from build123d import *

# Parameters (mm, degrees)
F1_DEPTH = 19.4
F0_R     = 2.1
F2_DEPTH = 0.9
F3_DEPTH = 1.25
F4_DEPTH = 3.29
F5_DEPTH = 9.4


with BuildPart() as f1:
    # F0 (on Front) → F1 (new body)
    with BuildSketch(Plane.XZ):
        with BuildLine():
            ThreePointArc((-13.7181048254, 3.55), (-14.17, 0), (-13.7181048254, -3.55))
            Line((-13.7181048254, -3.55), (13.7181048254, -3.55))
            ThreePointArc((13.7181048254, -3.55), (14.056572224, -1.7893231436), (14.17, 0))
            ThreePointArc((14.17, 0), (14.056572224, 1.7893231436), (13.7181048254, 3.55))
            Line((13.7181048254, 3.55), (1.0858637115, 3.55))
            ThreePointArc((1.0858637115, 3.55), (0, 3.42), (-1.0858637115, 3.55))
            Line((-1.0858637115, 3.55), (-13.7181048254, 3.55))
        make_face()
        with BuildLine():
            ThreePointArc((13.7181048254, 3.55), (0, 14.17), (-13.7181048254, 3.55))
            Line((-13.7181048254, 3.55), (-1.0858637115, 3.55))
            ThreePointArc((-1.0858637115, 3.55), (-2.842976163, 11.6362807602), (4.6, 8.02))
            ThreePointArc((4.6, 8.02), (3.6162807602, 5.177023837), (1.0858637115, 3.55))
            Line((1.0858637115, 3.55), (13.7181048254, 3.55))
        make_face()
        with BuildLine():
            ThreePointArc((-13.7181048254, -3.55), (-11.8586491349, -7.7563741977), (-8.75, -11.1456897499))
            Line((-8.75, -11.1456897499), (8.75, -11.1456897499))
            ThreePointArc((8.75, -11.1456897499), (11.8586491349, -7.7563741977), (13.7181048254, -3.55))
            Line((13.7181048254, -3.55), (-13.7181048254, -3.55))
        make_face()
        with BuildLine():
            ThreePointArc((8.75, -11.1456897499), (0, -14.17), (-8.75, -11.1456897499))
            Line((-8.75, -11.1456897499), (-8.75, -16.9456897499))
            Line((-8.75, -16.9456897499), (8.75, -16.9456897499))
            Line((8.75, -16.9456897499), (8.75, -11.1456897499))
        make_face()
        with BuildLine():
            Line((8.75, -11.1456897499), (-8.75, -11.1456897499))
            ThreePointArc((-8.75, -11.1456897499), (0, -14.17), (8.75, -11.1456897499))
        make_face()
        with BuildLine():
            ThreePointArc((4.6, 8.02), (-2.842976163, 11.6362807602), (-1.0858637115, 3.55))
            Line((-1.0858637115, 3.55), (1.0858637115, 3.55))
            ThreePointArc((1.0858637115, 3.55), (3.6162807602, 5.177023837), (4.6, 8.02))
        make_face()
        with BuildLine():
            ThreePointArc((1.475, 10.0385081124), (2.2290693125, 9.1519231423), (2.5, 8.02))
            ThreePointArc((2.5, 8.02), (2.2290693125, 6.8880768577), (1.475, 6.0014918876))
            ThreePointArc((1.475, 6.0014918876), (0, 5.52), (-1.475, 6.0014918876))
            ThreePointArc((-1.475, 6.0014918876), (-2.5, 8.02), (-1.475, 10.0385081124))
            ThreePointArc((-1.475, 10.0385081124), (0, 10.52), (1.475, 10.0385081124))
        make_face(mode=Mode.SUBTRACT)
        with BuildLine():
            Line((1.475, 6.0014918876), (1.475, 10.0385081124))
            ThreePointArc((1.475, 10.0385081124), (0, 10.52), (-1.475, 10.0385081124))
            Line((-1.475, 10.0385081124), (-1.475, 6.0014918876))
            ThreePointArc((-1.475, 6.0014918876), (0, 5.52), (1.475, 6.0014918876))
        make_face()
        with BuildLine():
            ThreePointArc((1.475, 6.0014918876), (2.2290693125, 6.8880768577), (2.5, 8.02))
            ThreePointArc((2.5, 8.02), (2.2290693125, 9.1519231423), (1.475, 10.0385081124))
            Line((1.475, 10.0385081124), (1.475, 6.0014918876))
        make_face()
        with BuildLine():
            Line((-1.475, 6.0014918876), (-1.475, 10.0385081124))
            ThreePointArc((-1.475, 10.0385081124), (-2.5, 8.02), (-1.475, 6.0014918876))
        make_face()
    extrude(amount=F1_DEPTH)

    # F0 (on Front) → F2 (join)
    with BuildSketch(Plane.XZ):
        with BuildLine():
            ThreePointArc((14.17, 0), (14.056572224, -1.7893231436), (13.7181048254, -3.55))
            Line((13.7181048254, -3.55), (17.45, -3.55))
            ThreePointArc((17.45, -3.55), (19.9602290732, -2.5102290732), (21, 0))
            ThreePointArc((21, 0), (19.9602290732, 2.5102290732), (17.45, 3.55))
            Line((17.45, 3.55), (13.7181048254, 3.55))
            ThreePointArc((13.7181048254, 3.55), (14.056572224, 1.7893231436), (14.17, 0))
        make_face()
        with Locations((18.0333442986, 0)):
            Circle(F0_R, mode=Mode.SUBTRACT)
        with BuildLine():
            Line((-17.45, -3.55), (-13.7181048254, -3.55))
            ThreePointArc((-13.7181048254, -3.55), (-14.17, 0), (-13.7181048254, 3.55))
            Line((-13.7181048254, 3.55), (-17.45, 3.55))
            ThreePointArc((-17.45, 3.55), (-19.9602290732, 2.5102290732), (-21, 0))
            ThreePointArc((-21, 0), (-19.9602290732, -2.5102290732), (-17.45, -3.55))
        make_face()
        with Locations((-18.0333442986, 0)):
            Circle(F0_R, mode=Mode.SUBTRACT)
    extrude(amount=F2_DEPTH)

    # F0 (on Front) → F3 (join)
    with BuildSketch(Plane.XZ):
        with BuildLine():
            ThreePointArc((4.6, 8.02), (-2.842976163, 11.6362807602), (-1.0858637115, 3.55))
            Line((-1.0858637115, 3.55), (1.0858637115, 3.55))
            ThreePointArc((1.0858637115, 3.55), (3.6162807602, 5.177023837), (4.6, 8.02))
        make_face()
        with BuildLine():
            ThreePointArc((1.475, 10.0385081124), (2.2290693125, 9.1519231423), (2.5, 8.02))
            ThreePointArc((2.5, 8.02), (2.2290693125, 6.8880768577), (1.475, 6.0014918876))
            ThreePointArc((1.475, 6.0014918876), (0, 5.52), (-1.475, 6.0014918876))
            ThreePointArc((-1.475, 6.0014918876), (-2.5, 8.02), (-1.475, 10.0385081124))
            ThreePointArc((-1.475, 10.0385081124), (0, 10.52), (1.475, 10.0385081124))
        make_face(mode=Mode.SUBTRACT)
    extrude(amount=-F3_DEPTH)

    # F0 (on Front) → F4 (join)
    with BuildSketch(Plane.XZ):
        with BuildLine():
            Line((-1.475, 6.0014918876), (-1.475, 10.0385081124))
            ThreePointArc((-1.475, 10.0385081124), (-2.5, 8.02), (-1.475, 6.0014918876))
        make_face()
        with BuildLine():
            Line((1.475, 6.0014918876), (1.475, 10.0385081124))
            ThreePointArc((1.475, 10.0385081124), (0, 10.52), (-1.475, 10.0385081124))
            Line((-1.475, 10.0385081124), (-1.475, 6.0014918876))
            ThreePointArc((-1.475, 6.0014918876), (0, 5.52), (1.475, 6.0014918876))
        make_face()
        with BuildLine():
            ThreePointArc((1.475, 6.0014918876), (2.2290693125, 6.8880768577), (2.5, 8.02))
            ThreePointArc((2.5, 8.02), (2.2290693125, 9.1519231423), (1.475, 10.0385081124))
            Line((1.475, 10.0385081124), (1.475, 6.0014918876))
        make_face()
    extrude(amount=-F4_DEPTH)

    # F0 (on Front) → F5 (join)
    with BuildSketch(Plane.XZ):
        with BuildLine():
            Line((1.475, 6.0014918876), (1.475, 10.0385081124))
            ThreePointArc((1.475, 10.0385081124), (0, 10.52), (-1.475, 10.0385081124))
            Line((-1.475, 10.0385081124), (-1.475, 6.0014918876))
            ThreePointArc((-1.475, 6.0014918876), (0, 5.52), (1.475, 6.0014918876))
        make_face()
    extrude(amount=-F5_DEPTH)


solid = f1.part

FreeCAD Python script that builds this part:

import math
import FreeCAD as App
import Part
import Sketcher

V = App.Vector

doc = App.newDocument("Part")
body = doc.addObject("PartDesign::Body", "Body")

# Sketch on XZ plane
sketch1 = doc.addObject("Sketcher::SketchObject", "Sketch")
body.addObject(sketch1)
sketch1.AttachmentSupport = (doc.XZ_Plane, [""])
sketch1.MapMode = "FlatFace"
sketch1.addGeometry([
    Part.ArcOfCircle(Part.Circle(V(0, 0, 0), V(0, 0, 1), 14.2), math.radians(165), math.radians(195)),  # 0
    Part.ArcOfCircle(Part.Circle(V(0, 0, 0), V(0, 0, 1), 14.2), math.radians(-165), math.radians(-128)),  # 1
    Part.LineSegment(V(-8.8, -11.1, 0), V(-8.8, -16.9, 0)),  # 2
    Part.LineSegment(V(-8.8, -16.9, 0), V(8.8, -16.9, 0)),  # 3
    Part.LineSegment(V(8.8, -16.9, 0), V(8.8, -11.1, 0)),  # 4
    Part.ArcOfCircle(Part.Circle(V(0, 0, 0), V(0, 0, 1), 14.2), math.radians(-52), math.radians(-15)),  # 5
    Part.ArcOfCircle(Part.Circle(V(0, 0, 0), V(0, 0, 1), 14.2), math.radians(-14.51), math.radians(0)),  # 6
    Part.ArcOfCircle(Part.Circle(V(0, 0, 0), V(0, 0, 1), 14.2), math.radians(0), math.radians(14.51)),  # 7
    Part.ArcOfCircle(Part.Circle(V(0, 0, 0), V(0, 0, 1), 14.2), math.radians(15), math.radians(165)),  # 8
    Part.ArcOfCircle(Part.Circle(V(0, 8, 0), V(0, 0, 1), 4.6), math.radians(-104), math.radians(-76)),  # 9
    Part.LineSegment(V(-1.1, 3.5, 0), V(1.1, 3.5, 0)),  # 10
], False)
sketch1.addConstraint([
    Sketcher.Constraint("Tangent", 0, 2, 1, 1),
    Sketcher.Constraint("Coincident", 1, 2, 2, 1),
    Sketcher.Constraint("Coincident", 2, 2, 3, 1),
    Sketcher.Constraint("Coincident", 3, 2, 4, 1),
    Sketcher.Constraint("Coincident", 4, 2, 5, 1),
    Sketcher.Constraint("Tangent", 5, 2, 6, 1),
    Sketcher.Constraint("Tangent", 6, 2, 7, 1),
    Sketcher.Constraint("Tangent", 7, 2, 8, 1),
    Sketcher.Constraint("Tangent", 8, 2, 0, 1),
    Sketcher.Constraint("Coincident", 9, 1, 10, 1),
    Sketcher.Constraint("Coincident", 10, 2, 9, 2),
    Sketcher.Constraint("Vertical", 2),
    Sketcher.Constraint("Horizontal", 3),
    Sketcher.Constraint("Vertical", 4),
    Sketcher.Constraint("Horizontal", 10),
    Sketcher.Constraint("Coincident", 0, 3, -1, 1),
    Sketcher.Constraint("Coincident", 5, 3, -1, 1),
    Sketcher.Constraint("Coincident", 7, 3, -1, 1),
    Sketcher.Constraint("Equal", 0, 1),
    Sketcher.Constraint("PointOnObject", 9, 3, -2),
    Sketcher.Constraint("PointOnObject", 6, 2, -1),
    Sketcher.Constraint("Horizontal", 1, 2, 4, 2),
    Sketcher.Constraint("Horizontal", 0, 2, 5, 2),
    Sketcher.Constraint("Horizontal", 7, 2, 8, 2),
    Sketcher.Constraint("Horizontal", 8, 2, 9, 1),
    Sketcher.Constraint("Vertical", 5, 2, 7, 2),
    Sketcher.Constraint("Radius", 9, 4.6),
    Sketcher.Constraint("Radius", 0, 14.17),
    Sketcher.Constraint("DistanceX", 3, 1, 3, 2, 17.5),
    Sketcher.Constraint("DistanceY", 2, 2, 2, 1, 5.8),
    Sketcher.Constraint("DistanceY", 5, 2, 7, 2, 7.1),
    Sketcher.Constraint("DistanceY", -1, 1, 9, 3, 8.02),
])
pad1 = doc.addObject("PartDesign::Pad", "Pad")
body.addObject(pad1)
pad1.Profile = sketch1
pad1.Length = 19.4

# Sketch on XZ plane
sketch2 = doc.addObject("Sketcher::SketchObject", "Sketch001")
body.addObject(sketch2)
sketch2.AttachmentSupport = (doc.XZ_Plane, [""])
sketch2.MapMode = "FlatFace"
sketch2.addGeometry([
    Part.ArcOfCircle(Part.Circle(V(0, 0, 0), V(0, 0, 1), 14.2), math.radians(-14.51), math.radians(0)),  # 0
    Part.LineSegment(V(13.7, -3.5, 0), V(17.4, -3.5, 0)),  # 1
    Part.ArcOfCircle(Part.Circle(V(17.4, 0, 0), V(0, 0, 1), 3.5), math.radians(-90), math.radians(0)),  # 2
    Part.ArcOfCircle(Part.Circle(V(17.4, 0, 0), V(0, 0, 1), 3.5), math.radians(0), math.radians(90)),  # 3
    Part.LineSegment(V(17.4, 3.5, 0), V(13.7, 3.5, 0)),  # 4
    Part.ArcOfCircle(Part.Circle(V(0, 0, 0), V(0, 0, 1), 14.2), math.radians(0), math.radians(14.51)),  # 5
    Part.Circle(V(18, 0, 0), V(0, 0, 1), 2.1),  # 6
    Part.LineSegment(V(-17.4, -3.5, 0), V(-13.7, -3.5, 0)),  # 7
    Part.ArcOfCircle(Part.Circle(V(0, 0, 0), V(0, 0, 1), 14.2), math.radians(165), math.radians(195)),  # 8
    Part.LineSegment(V(-13.7, 3.5, 0), V(-17.4, 3.5, 0)),  # 9
    Part.ArcOfCircle(Part.Circle(V(-17.4, 0, 0), V(0, 0, 1), 3.5), math.radians(90), math.radians(180)),  # 10
    Part.ArcOfCircle(Part.Circle(V(-17.4, 0, 0), V(0, 0, 1), 3.5), math.radians(180), math.radians(270)),  # 11
    Part.Circle(V(-18, 0, 0), V(0, 0, 1), 2.1),  # 12
], False)
sketch2.addConstraint([
    Sketcher.Constraint("Coincident", 0, 1, 1, 1),
    Sketcher.Constraint("Tangent", 1, 2, 2, 1),
    Sketcher.Constraint("Tangent", 2, 2, 3, 1),
    Sketcher.Constraint("Tangent", 3, 2, 4, 1),
    Sketcher.Constraint("Coincident", 4, 2, 5, 2),
    Sketcher.Constraint("Tangent", 5, 1, 0, 2),
    Sketcher.Constraint("Coincident", 7, 2, 8, 2),
    Sketcher.Constraint("Coincident", 8, 1, 9, 1),
    Sketcher.Constraint("Tangent", 9, 2, 10, 1),
    Sketcher.Constraint("Tangent", 10, 2, 11, 1),
    Sketcher.Constraint("Tangent", 11, 2, 7, 1),
    Sketcher.Constraint("Horizontal", 1),
    Sketcher.Constraint("Horizontal", 4),
    Sketcher.Constraint("Horizontal", 7),
    Sketcher.Constraint("Horizontal", 9),
    Sketcher.Constraint("Coincident", 0, 3, -1, 1),
    Sketcher.Constraint("Coincident", 8, 3, -1, 1),
    Sketcher.Constraint("Equal", 2, 3),
    Sketcher.Constraint("Equal", 0, 5),
    Sketcher.Constraint("Equal", 5, 8),
    Sketcher.Constraint("Equal", 3, 10),
    Sketcher.Constraint("Equal", 10, 11),
    Sketcher.Constraint("Equal", 6, 12),
    Sketcher.Constraint("Symmetric", 2, 3, 10, 3, -1, 1),
    Sketcher.Constraint("Symmetric", 6, 3, 12, 3, -1, 1),
    Sketcher.Constraint("PointOnObject", 2, 3, -1),
    Sketcher.Constraint("PointOnObject", 6, 3, -1),
    Sketcher.Constraint("PointOnObject", 2, 2, -1),
    Sketcher.Constraint("PointOnObject", 5, 1, -1),
    Sketcher.Constraint("PointOnObject", 10, 2, -1),
    Sketcher.Constraint("Diameter", 6, 4.2),
    Sketcher.Constraint("Radius", 0, 14.17),
    Sketcher.Constraint("Radius", 2, 3.55),
    Sketcher.Constraint("DistanceX", -1, 1, 2, 2, 21.0),
    Sketcher.Constraint("DistanceX", 0, 1, 6, 3, 4.315239),
])
pad2 = doc.addObject("PartDesign::Pad", "Pad001")
body.addObject(pad2)
pad2.Profile = sketch2
pad2.Length = 0.9

# Sketch on XZ plane
sketch3 = doc.addObject("Sketcher::SketchObject", "Sketch002")
body.addObject(sketch3)
sketch3.AttachmentSupport = (doc.XZ_Plane, [""])
sketch3.MapMode = "FlatFace"
sketch3.addGeometry([
    Part.LineSegment(V(-1.1, 3.5, 0), V(1.1, 3.5, 0)),  # 0
    Part.ArcOfCircle(Part.Circle(V(0, 8, 0), V(0, 0, 1), 4.6), math.radians(-76), math.radians(256)),  # 1
    Part.ArcOfCircle(Part.Circle(V(0, 8, 0), V(0, 0, 1), 2.5), math.radians(54), math.radians(126)),  # 2
    Part.ArcOfCircle(Part.Circle(V(0, 8, 0), V(0, 0, 1), 2.5), math.radians(0), math.radians(54)),  # 3
    Part.ArcOfCircle(Part.Circle(V(0, 8, 0), V(0, 0, 1), 2.5), math.radians(-54), math.radians(0)),  # 4
    Part.ArcOfCircle(Part.Circle(V(0, 8, 0), V(0, 0, 1), 2.5), math.radians(-126), math.radians(-54)),  # 5
    Part.ArcOfCircle(Part.Circle(V(0, 8, 0), V(0, 0, 1), 2.5), math.radians(126), math.radians(234)),  # 6
], False)
sketch3.addConstraint([
    Sketcher.Constraint("Coincident", 0, 1, 1, 2),
    Sketcher.Constraint("Coincident", 1, 1, 0, 2),
    Sketcher.Constraint("Tangent", 2, 1, 3, 2),
    Sketcher.Constraint("Tangent", 3, 1, 4, 2),
    Sketcher.Constraint("Tangent", 4, 1, 5, 2),
    Sketcher.Constraint("Tangent", 5, 1, 6, 2),
    Sketcher.Constraint("Tangent", 6, 1, 2, 2),
    Sketcher.Constraint("Horizontal", 0),
    Sketcher.Constraint("Coincident", 2, 3, 1, 3),
    Sketcher.Constraint("Coincident", 4, 3, 1, 3),
    Sketcher.Constraint("Symmetric", 4, 1, 5, 1, -2),
    Sketcher.Constraint("Horizontal", 6, 3, 3, 1),
    Sketcher.Constraint("Horizontal", 2, 1, 6, 1),
    Sketcher.Constraint("Vertical", 2, 1, 4, 1),
    Sketcher.Constraint("Radius", 1, 4.6),
    Sketcher.Constraint("Radius", 2, 2.5),
    Sketcher.Constraint("DistanceY", -1, 1, 1, 3, 8.02),
    Sketcher.Constraint("DistanceY", -1, 1, 0, 1, 3.55),
    Sketcher.Constraint("DistanceX", -1, 1, 2, 1, 1.475),
])
pad3 = doc.addObject("PartDesign::Pad", "Pad002")
body.addObject(pad3)
pad3.Profile = sketch3
pad3.Length = 1.25
pad3.Reversed = True

# Sketch on XZ plane
sketch4 = doc.addObject("Sketcher::SketchObject", "Sketch003")
body.addObject(sketch4)
sketch4.AttachmentSupport = (doc.XZ_Plane, [""])
sketch4.MapMode = "FlatFace"
sketch4.addGeometry([
    Part.ArcOfCircle(Part.Circle(V(0, 8, 0), V(0, 0, 1), 2.5), math.radians(126), math.radians(234)),  # 0
    Part.ArcOfCircle(Part.Circle(V(0, 8, 0), V(0, 0, 1), 2.5), math.radians(-126), math.radians(-54)),  # 1
    Part.ArcOfCircle(Part.Circle(V(0, 8, 0), V(0, 0, 1), 2.5), math.radians(-54), math.radians(0)),  # 2
    Part.ArcOfCircle(Part.Circle(V(0, 8, 0), V(0, 0, 1), 2.5), math.radians(0), math.radians(54)),  # 3
    Part.ArcOfCircle(Part.Circle(V(0, 8, 0), V(0, 0, 1), 2.5), math.radians(54), math.radians(126)),  # 4
], False)
sketch4.addConstraint([
    Sketcher.Constraint("Tangent", 0, 2, 1, 1),
    Sketcher.Constraint("Tangent", 1, 2, 2, 1),
    Sketcher.Constraint("Tangent", 2, 2, 3, 1),
    Sketcher.Constraint("Tangent", 3, 2, 4, 1),
    Sketcher.Constraint("Tangent", 4, 2, 0, 1),
    Sketcher.Constraint("Coincident", 2, 3, 0, 3),
    Sketcher.Constraint("Symmetric", 0, 2, 1, 2, -2),
    Sketcher.Constraint("Horizontal", 4, 3, 2, 2),
    Sketcher.Constraint("Horizontal", 3, 2, 4, 2),
    Sketcher.Constraint("Vertical", 1, 2, 3, 2),
    Sketcher.Constraint("Radius", 0, 2.5),
    Sketcher.Constraint("DistanceY", -1, 1, 0, 3, 8.02),
    Sketcher.Constraint("DistanceX", 0, 2, -1, 1, 1.475),
])
pad4 = doc.addObject("PartDesign::Pad", "Pad003")
body.addObject(pad4)
pad4.Profile = sketch4
pad4.Length = 3.29
pad4.Reversed = True

# Sketch on XZ plane
sketch5 = doc.addObject("Sketcher::SketchObject", "Sketch004")
body.addObject(sketch5)
sketch5.AttachmentSupport = (doc.XZ_Plane, [""])
sketch5.MapMode = "FlatFace"
sketch5.addGeometry([
    Part.LineSegment(V(1.5, 6, 0), V(1.5, 10, 0)),
    Part.ArcOfCircle(Part.Circle(V(0, 8, 0), V(0, 0, 1), 2.5), math.radians(54), math.radians(126)),
    Part.LineSegment(V(-1.5, 10, 0), V(-1.5, 6, 0)),
    Part.ArcOfCircle(Part.Circle(V(0, 8, 0), V(0, 0, 1), 2.5), math.radians(-126), math.radians(-54)),
], False)
sketch5.addConstraint([
    Sketcher.Constraint("Coincident", 0, 2, 1, 1),
    Sketcher.Constraint("Coincident", 1, 2, 2, 1),
    Sketcher.Constraint("Coincident", 2, 2, 3, 1),
    Sketcher.Constraint("Coincident", 3, 2, 0, 1),
    Sketcher.Constraint("Vertical", 0),
    Sketcher.Constraint("Vertical", 2),
    Sketcher.Constraint("Coincident", 3, 3, 1, 3),
    Sketcher.Constraint("Equal", 1, 3),
    Sketcher.Constraint("Symmetric", 0, 2, 1, 2, -2),
    Sketcher.Constraint("Radius", 1, 2.5),
    Sketcher.Constraint("DistanceY", -1, 1, 1, 3, 8.02),
    Sketcher.Constraint("DistanceX", 1, 2, 0, 2, 2.95),
])
pad5 = doc.addObject("PartDesign::Pad", "Pad004")
body.addObject(pad5)
pad5.Profile = sketch5
pad5.Length = 9.4
pad5.Reversed = True

doc.recompute()
